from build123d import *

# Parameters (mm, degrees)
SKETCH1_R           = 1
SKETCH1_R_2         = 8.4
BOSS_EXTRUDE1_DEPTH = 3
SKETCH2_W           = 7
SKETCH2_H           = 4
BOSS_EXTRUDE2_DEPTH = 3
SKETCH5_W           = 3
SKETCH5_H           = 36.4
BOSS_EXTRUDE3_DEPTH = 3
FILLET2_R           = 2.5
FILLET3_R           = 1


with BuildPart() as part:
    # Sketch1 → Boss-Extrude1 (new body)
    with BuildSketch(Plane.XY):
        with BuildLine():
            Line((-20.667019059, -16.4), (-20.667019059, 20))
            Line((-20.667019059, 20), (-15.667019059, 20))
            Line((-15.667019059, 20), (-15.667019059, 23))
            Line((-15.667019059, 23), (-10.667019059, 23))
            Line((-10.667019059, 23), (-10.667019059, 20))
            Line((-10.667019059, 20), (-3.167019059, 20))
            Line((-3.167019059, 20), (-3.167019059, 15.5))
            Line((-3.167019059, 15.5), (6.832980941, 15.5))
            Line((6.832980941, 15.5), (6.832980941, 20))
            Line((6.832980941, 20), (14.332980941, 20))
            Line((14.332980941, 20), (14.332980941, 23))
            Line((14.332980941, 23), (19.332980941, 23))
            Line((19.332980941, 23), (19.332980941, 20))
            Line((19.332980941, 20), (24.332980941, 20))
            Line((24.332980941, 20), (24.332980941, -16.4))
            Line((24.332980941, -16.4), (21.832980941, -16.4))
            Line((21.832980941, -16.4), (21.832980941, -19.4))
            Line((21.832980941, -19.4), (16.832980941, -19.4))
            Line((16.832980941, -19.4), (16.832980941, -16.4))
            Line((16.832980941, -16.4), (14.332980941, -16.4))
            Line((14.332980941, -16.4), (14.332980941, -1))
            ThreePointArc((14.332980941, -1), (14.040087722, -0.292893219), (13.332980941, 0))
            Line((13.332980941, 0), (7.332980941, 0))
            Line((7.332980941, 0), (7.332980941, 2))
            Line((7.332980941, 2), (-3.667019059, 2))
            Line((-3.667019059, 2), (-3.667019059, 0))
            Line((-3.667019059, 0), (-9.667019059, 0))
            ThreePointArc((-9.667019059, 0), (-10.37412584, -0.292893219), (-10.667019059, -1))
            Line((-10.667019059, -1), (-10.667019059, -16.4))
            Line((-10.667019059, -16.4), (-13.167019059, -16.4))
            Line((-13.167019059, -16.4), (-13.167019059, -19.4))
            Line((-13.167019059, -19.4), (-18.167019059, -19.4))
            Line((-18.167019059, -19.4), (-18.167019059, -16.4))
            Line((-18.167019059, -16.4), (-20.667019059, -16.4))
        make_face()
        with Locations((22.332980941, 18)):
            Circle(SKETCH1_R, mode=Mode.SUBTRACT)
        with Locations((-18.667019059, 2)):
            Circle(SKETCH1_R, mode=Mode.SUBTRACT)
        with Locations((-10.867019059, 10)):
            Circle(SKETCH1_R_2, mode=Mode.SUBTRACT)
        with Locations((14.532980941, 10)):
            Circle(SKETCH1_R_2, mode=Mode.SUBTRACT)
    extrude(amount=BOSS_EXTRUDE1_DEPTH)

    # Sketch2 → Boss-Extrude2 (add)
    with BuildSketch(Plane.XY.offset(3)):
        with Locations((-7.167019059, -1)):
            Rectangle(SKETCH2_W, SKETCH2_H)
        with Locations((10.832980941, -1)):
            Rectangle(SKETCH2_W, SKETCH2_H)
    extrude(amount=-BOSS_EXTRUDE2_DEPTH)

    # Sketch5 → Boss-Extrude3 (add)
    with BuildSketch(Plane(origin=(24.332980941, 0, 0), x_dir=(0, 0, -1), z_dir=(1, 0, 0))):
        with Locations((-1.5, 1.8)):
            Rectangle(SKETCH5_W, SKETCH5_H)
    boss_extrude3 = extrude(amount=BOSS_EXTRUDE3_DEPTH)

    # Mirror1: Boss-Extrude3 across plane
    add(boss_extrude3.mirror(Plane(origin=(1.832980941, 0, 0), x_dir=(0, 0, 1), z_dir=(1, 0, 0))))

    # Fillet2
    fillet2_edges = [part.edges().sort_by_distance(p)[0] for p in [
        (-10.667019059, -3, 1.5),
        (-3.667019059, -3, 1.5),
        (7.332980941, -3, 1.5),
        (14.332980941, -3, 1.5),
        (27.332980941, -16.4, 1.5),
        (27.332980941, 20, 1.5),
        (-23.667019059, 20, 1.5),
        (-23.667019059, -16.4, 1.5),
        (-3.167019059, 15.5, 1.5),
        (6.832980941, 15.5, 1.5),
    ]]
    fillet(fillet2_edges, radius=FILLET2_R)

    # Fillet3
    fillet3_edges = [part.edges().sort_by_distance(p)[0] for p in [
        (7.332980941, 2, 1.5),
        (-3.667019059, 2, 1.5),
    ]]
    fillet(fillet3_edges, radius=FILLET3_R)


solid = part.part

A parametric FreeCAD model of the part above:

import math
import FreeCAD as App
import Part
import Sketcher


def edges_at(feature, points):
    """Names of the edges that pass closest to the given points."""
    edges = feature.Shape.Edges
    near = lambda p: min(range(len(edges)), key=lambda i: edges[i].distToShape(Part.Vertex(*p))[0])
    return sorted({f"Edge{near(p) + 1}" for p in points})

doc = App.newDocument("Part")
body = doc.addObject("PartDesign::Body", "Body")

# Sketch on XY plane
sketch1 = body.newObject("Sketcher::SketchObject", "Sketch")
sketch1.AttachmentSupport = (doc.getObject("XY_Plane"), [""])
sketch1.MapMode = "FlatFace"
sketch1.addGeometry([
    Part.LineSegment(App.Vector(-20.7, 20, 0), App.Vector(-20.7, -16.4, 0)),  # 0
    Part.LineSegment(App.Vector(-20.7, -16.4, 0), App.Vector(-18.2, -16.4, 0)),  # 1
    Part.LineSegment(App.Vector(-18.2, -16.4, 0), App.Vector(-18.2, -19.4, 0)),  # 2
    Part.LineSegment(App.Vector(-18.2, -19.4, 0), App.Vector(-13.2, -19.4, 0)),  # 3
    Part.LineSegment(App.Vector(-13.2, -19.4, 0), App.Vector(-13.2, -16.4, 0)),  # 4
    Part.LineSegment(App.Vector(-13.2, -16.4, 0), App.Vector(-10.7, -16.4, 0)),  # 5
    Part.LineSegment(App.Vector(-10.7, -16.4, 0), App.Vector(-10.7, -1, 0)),  # 6
    Part.ArcOfCircle(Part.Circle(App.Vector(-9.7, -1, 0), App.Vector(0, 0, 1), 1), math.radians(90), math.radians(180)),  # 7
    Part.LineSegment(App.Vector(-9.7, 0, 0), App.Vector(-3.7, 0, 0)),  # 8
    Part.LineSegment(App.Vector(-3.7, 0, 0), App.Vector(-3.7, 2, 0)),  # 9
    Part.LineSegment(App.Vector(-3.7, 2, 0), App.Vector(7.3, 2, 0)),  # 10
    Part.LineSegment(App.Vector(7.3, 2, 0), App.Vector(7.3, 0, 0)),  # 11
    Part.LineSegment(App.Vector(7.3, 0, 0), App.Vector(13.3, 0, 0)),  # 12
    Part.ArcOfCircle(Part.Circle(App.Vector(13.3, -1, 0), App.Vector(0, 0, 1), 1), math.radians(0), math.radians(90)),  # 13
    Part.LineSegment(App.Vector(14.3, -1, 0), App.Vector(14.3, -16.4, 0)),  # 14
    Part.LineSegment(App.Vector(14.3, -16.4, 0), App.Vector(16.8, -16.4, 0)),  # 15
    Part.LineSegment(App.Vector(16.8, -16.4, 0), App.Vector(16.8, -19.4, 0)),  # 16
    Part.LineSegment(App.Vector(16.8, -19.4, 0), App.Vector(21.8, -19.4, 0)),  # 17
    Part.LineSegment(App.Vector(21.8, -19.4, 0), App.Vector(21.8, -16.4, 0)),  # 18
    Part.LineSegment(App.Vector(21.8, -16.4, 0), App.Vector(24.3, -16.4, 0)),  # 19
    Part.LineSegment(App.Vector(24.3, -16.4, 0), App.Vector(24.3, 20, 0)),  # 20
    Part.LineSegment(App.Vector(24.3, 20, 0), App.Vector(19.3, 20, 0)),  # 21
    Part.LineSegment(App.Vector(19.3, 20, 0), App.Vector(19.3, 23, 0)),  # 22
    Part.LineSegment(App.Vector(19.3, 23, 0), App.Vector(14.3, 23, 0)),  # 23
    Part.LineSegment(App.Vector(14.3, 23, 0), App.Vector(14.3, 20, 0)),  # 24
    Part.LineSegment(App.Vector(14.3, 20, 0), App.Vector(6.8, 20, 0)),  # 25
    Part.LineSegment(App.Vector(6.8, 20, 0), App.Vector(6.8, 15.5, 0)),  # 26
    Part.LineSegment(App.Vector(6.8, 15.5, 0), App.Vector(-3.2, 15.5, 0)),  # 27
    Part.LineSegment(App.Vector(-3.2, 15.5, 0), App.Vector(-3.2, 20, 0)),  # 28
    Part.LineSegment(App.Vector(-3.2, 20, 0), App.Vector(-10.7, 20, 0)),  # 29
    Part.LineSegment(App.Vector(-10.7, 20, 0), App.Vector(-10.7, 23, 0)),  # 30
    Part.LineSegment(App.Vector(-10.7, 23, 0), App.Vector(-15.7, 23, 0)),  # 31
    Part.LineSegment(App.Vector(-15.7, 23, 0), App.Vector(-15.7, 20, 0)),  # 32
    Part.LineSegment(App.Vector(-15.7, 20, 0), App.Vector(-20.7, 20, 0)),  # 33
    Part.Circle(App.Vector(-18.7, 2, 0), App.Vector(0, 0, 1), 1),  # 34
    Part.Circle(App.Vector(14.5, 10, 0), App.Vector(0, 0, 1), 8.4),  # 35
    Part.Circle(App.Vector(22.3, 18, 0), App.Vector(0, 0, 1), 1),  # 36
    Part.Circle(App.Vector(-10.9, 10, 0), App.Vector(0, 0, 1), 8.4),  # 37
], False)
sketch1.addConstraint([
    Sketcher.Constraint("Coincident", 0, 2, 1, 1),
    Sketcher.Constraint("Coincident", 1, 2, 2, 1),
    Sketcher.Constraint("Coincident", 2, 2, 3, 1),
    Sketcher.Constraint("Coincident", 3, 2, 4, 1),
    Sketcher.Constraint("Coincident", 4, 2, 5, 1),
    Sketcher.Constraint("Coincident", 5, 2, 6, 1),
    Sketcher.Constraint("Tangent", 6, 2, 7, 2),
    Sketcher.Constraint("Tangent", 7, 1, 8, 1),
    Sketcher.Constraint("Coincident", 8, 2, 9, 1),
    Sketcher.Constraint("Coincident", 9, 2, 10, 1),
    Sketcher.Constraint("Coincident", 10, 2, 11, 1),
    Sketcher.Constraint("Coincident", 11, 2, 12, 1),
    Sketcher.Constraint("Tangent", 12, 2, 13, 2),
    Sketcher.Constraint("Tangent", 13, 1, 14, 1),
    Sketcher.Constraint("Coincident", 14, 2, 15, 1),
    Sketcher.Constraint("Coincident", 15, 2, 16, 1),
    Sketcher.Constraint("Coincident", 16, 2, 17, 1),
    Sketcher.Constraint("Coincident", 17, 2, 18, 1),
    Sketcher.Constraint("Coincident", 18, 2, 19, 1),
    Sketcher.Constraint("Coincident", 19, 2, 20, 1),
    Sketcher.Constraint("Coincident", 20, 2, 21, 1),
    Sketcher.Constraint("Coincident", 21, 2, 22, 1),
    Sketcher.Constraint("Coincident", 22, 2, 23, 1),
    Sketcher.Constraint("Coincident", 23, 2, 24, 1),
    Sketcher.Constraint("Coincident", 24, 2, 25, 1),
    Sketcher.Constraint("Coincident", 25, 2, 26, 1),
    Sketcher.Constraint("Coincident", 26, 2, 27, 1),
    Sketcher.Constraint("Coincident", 27, 2, 28, 1),
    Sketcher.Constraint("Coincident", 28, 2, 29, 1),
    Sketcher.Constraint("Coincident", 29, 2, 30, 1),
    Sketcher.Constraint("Coincident", 30, 2, 31, 1),
    Sketcher.Constraint("Coincident", 31, 2, 32, 1),
    Sketcher.Constraint("Coincident", 32, 2, 33, 1),
    Sketcher.Constraint("Coincident", 33, 2, 0, 1),
    Sketcher.Constraint("Vertical", 0),
    Sketcher.Constraint("Horizontal", 1),
    Sketcher.Constraint("Vertical", 2),
    Sketcher.Constraint("Horizontal", 3),
    Sketcher.Constraint("Vertical", 4),
    Sketcher.Constraint("Horizontal", 5),
    Sketcher.Constraint("Vertical", 6),
    Sketcher.Constraint("Horizontal", 8),
    Sketcher.Constraint("Vertical", 9),
    Sketcher.Constraint("Horizontal", 10),
    Sketcher.Constraint("Vertical", 11),
    Sketcher.Constraint("Horizontal", 12),
    Sketcher.Constraint("Vertical", 14),
    Sketcher.Constraint("Horizontal", 15),
    Sketcher.Constraint("Vertical", 16),
    Sketcher.Constraint("Horizontal", 17),
    Sketcher.Constraint("Vertical", 18),
    Sketcher.Constraint("Horizontal", 19),
    Sketcher.Constraint("Vertical", 20),
    Sketcher.Constraint("Horizontal", 21),
    Sketcher.Constraint("Vertical", 22),
    Sketcher.Constraint("Horizontal", 23),
    Sketcher.Constraint("Vertical", 24),
    Sketcher.Constraint("Horizontal", 25),
    Sketcher.Constraint("Vertical", 26),
    Sketcher.Constraint("Horizontal", 27),
    Sketcher.Constraint("Vertical", 28),
    Sketcher.Constraint("Horizontal", 29),
    Sketcher.Constraint("Vertical", 30),
    Sketcher.Constraint("Horizontal", 31),
    Sketcher.Constraint("Vertical", 32),
    Sketcher.Constraint("Horizontal", 33),
    Sketcher.Constraint("Equal", 7, 13),
    Sketcher.Constraint("Equal", 13, 34),
    Sketcher.Constraint("Equal", 34, 36),
    Sketcher.Constraint("Equal", 35, 37),
    Sketcher.Constraint("PointOnObject", 7, 1, -1),
    Sketcher.Constraint("PointOnObject", 11, 2, -1),
    Sketcher.Constraint("Horizontal", 35, 3, 37, 3),
    Sketcher.Constraint("Horizontal", 1, 2, 4, 2),
    Sketcher.Constraint("Horizontal", 34, 3, 9, 2),
    Sketcher.Constraint("Horizontal", 5, 2, 14, 2),
    Sketcher.Constraint("Horizontal", 3, 2, 16, 2),
    Sketcher.Constraint("Horizontal", 15, 2, 18, 2),
    Sketcher.Constraint("Horizontal", 21, 2, 24, 2),
    Sketcher.Constraint("Horizontal", 25, 2, 28, 2),
    Sketcher.Constraint("Horizontal", 23, 2, 30, 2),
    Sketcher.Constraint("Horizontal", 29, 2, 32, 2),
    Sketcher.Constraint("Vertical", 14, 2, 23, 2),
    Sketcher.Constraint("Vertical", 6, 2, 29, 2),
    Sketcher.Constraint("Equal", 1, 5),
    Sketcher.Constraint("Equal", 8, 12),
    Sketcher.Constraint("Equal", 5, 15),
    Sketcher.Constraint("Equal", 3, 17),
    Sketcher.Constraint("Equal", 15, 19),
    Sketcher.Constraint("Equal", 17, 21),
    Sketcher.Constraint("Equal", 21, 23),
    Sketcher.Constraint("Equal", 25, 29),
    Sketcher.Constraint("Equal", 23, 31),
    Sketcher.Constraint("Equal", 18, 22),
    Sketcher.Constraint("Diameter", 34, 2.0),
    Sketcher.Constraint("Diameter", 35, 16.8),
    Sketcher.Constraint("DistanceX", 3, 1, 3, 2, 5.0),
    Sketcher.Constraint("DistanceX", 8, 1, 8, 2, 6.0),
    Sketcher.Constraint("DistanceX", 10, 1, 10, 2, 11.0),
    Sketcher.Constraint("DistanceX", 27, 2, 27, 1, 10.0),
    Sketcher.Constraint("DistanceY", 2, 2, 2, 1, 3.0),
    Sketcher.Constraint("DistanceY", 9, 1, 9, 2, 2.0),
    Sketcher.Constraint("DistanceY", 0, 2, 0, 1, 36.4),
    Sketcher.Constraint("DistanceY", 6, 1, 6, 2, 15.4),
    Sketcher.Constraint("DistanceY", 26, 2, 26, 1, 4.5),
    Sketcher.Constraint("DistanceY", -1, 1, 35, 3, 10.0),
    Sketcher.Constraint("DistanceY", -1, 1, 36, 3, 18.0),
    Sketcher.Constraint("DistanceX", 34, 3, 7, 3, 9.0),
    Sketcher.Constraint("DistanceX", 13, 3, 36, 3, 9.0),
    Sketcher.Constraint("DistanceX", 13, 3, 35, 3, 1.2),
    Sketcher.Constraint("DistanceX", 37, 3, 7, 3, 1.2),
    Sketcher.Constraint("DistanceX", 7, 3, -1, 1, 9.667019),
])
pad1 = body.newObject("PartDesign::Pad", "Pad")
pad1.Profile = sketch1
pad1.Length = 3

# Sketch on XY plane
sketch2 = body.newObject("Sketcher::SketchObject", "Sketch001")
sketch2.AttachmentSupport = (doc.getObject("XY_Plane"), [""])
sketch2.MapMode = "FlatFace"
sketch2.AttachmentOffset = App.Placement(App.Vector(0, 0, 3), App.Rotation())
sketch2.addGeometry([
    Part.LineSegment(App.Vector(-10.7, 1, 0), App.Vector(-10.7, -3, 0)),  # 0
    Part.LineSegment(App.Vector(-10.7, -3, 0), App.Vector(-3.7, -3, 0)),  # 1
    Part.LineSegment(App.Vector(-3.7, -3, 0), App.Vector(-3.7, 1, 0)),  # 2
    Part.LineSegment(App.Vector(-3.7, 1, 0), App.Vector(-10.7, 1, 0)),  # 3
    Part.LineSegment(App.Vector(7.3, 1, 0), App.Vector(7.3, -3, 0)),  # 4
    Part.LineSegment(App.Vector(7.3, -3, 0), App.Vector(14.3, -3, 0)),  # 5
    Part.LineSegment(App.Vector(14.3, -3, 0), App.Vector(14.3, 1, 0)),  # 6
    Part.LineSegment(App.Vector(14.3, 1, 0), App.Vector(7.3, 1, 0)),  # 7
], False)
sketch2.addConstraint([
    Sketcher.Constraint("Coincident", 0, 2, 1, 1),
    Sketcher.Constraint("Coincident", 1, 2, 2, 1),
    Sketcher.Constraint("Coincident", 2, 2, 3, 1),
    Sketcher.Constraint("Coincident", 3, 2, 0, 1),
    Sketcher.Constraint("Coincident", 4, 2, 5, 1),
    Sketcher.Constraint("Coincident", 5, 2, 6, 1),
    Sketcher.Constraint("Coincident", 6, 2, 7, 1),
    Sketcher.Constraint("Coincident", 7, 2, 4, 1),
    Sketcher.Constraint("Vertical", 0),
    Sketcher.Constraint("Horizontal", 1),
    Sketcher.Constraint("Vertical", 2),
    Sketcher.Constraint("Horizontal", 3),
    Sketcher.Constraint("Vertical", 4),
    Sketcher.Constraint("Horizontal", 5),
    Sketcher.Constraint("Vertical", 6),
    Sketcher.Constraint("Horizontal", 7),
    Sketcher.Constraint("Horizontal", 1, 2, 4, 2),
    Sketcher.Constraint("Horizontal", 3, 2, 6, 2),
    Sketcher.Constraint("Equal", 3, 5),
    Sketcher.Constraint("DistanceX", 1, 1, 1, 2, 7.0),
    Sketcher.Constraint("DistanceY", 0, 2, 0, 1, 4.0),
    Sketcher.Constraint("DistanceY", 0, 2, -1, 1, 3.0),
    Sketcher.Constraint("DistanceX", 1, 2, 4, 2, 11.0),
    Sketcher.Constraint("DistanceX", 0, 2, -1, 1, 10.667019),
])
pad2 = body.newObject("PartDesign::Pad", "Pad001")
pad2.Profile = sketch2
pad2.Length = 3
pad2.Reversed = True

# Sketch on YZ plane
sketch3 = body.newObject("Sketcher::SketchObject", "Sketch002")
sketch3.AttachmentSupport = (doc.getObject("YZ_Plane"), [""])
sketch3.MapMode = "FlatFace"
sketch3.AttachmentOffset = App.Placement(App.Vector(0, 0, 24.332981), App.Rotation())
sketch3.addGeometry([
    Part.LineSegment(App.Vector(20, 3, 0), App.Vector(-16.4, 3, 0)),
    Part.LineSegment(App.Vector(-16.4, 3, 0), App.Vector(-16.4, 0, 0)),
    Part.LineSegment(App.Vector(-16.4, 0, 0), App.Vector(20, 0, 0)),
    Part.LineSegment(App.Vector(20, 0, 0), App.Vector(20, 3, 0)),
], False)
sketch3.addConstraint([
    Sketcher.Constraint("Coincident", 0, 2, 1, 1),
    Sketcher.Constraint("Coincident", 1, 2, 2, 1),
    Sketcher.Constraint("Coincident", 2, 2, 3, 1),
    Sketcher.Constraint("Coincident", 3, 2, 0, 1),
    Sketcher.Constraint("Horizontal", 0),
    Sketcher.Constraint("Vertical", 1),
    Sketcher.Constraint("Horizontal", 2),
    Sketcher.Constraint("Vertical", 3),
    Sketcher.Constraint("PointOnObject", 1, 2, -1),
    Sketcher.Constraint("DistanceY", 1, 2, 1, 1, 3.0),
    Sketcher.Constraint("DistanceX", 0, 2, 0, 1, 36.4),
    Sketcher.Constraint("DistanceX", -1, 1, 2, 2, 20.0),
])
pad3 = body.newObject("PartDesign::Pad", "Pad002")
pad3.Profile = sketch3
pad3.Length = 3
doc.recompute()

datumplane = body.newObject("PartDesign::Plane", "DatumPlane")
datumplane.AttachmentSupport = (doc.getObject("YZ_Plane"), [""])
datumplane.MapMode = "FlatFace"
datumplane.AttachmentOffset = App.Placement(App.Vector(0, 0, 1.832981), App.Rotation())
mirrored = body.newObject("PartDesign::Mirrored", "Mirrored")
mirrored.Originals = [pad3]
mirrored.MirrorPlane = (datumplane, [""])
body.Tip = mirrored
doc.recompute()

fillet = body.newObject("PartDesign::Fillet", "Fillet")
fillet.Base = (mirrored, edges_at(mirrored, [
    (-10.667, -3, 1.5),
    (-3.667, -3, 1.5),
    (7.333, -3, 1.5),
    (14.333, -3, 1.5),
    (27.333, -16.4, 1.5),
    (27.333, 20, 1.5),
    (-23.667, 20, 1.5),
    (-23.667, -16.4, 1.5),
    (-3.167, 15.5, 1.5),
    (6.833, 15.5, 1.5),
]))
fillet.Radius = 2.5
doc.recompute()

fillet2 = body.newObject("PartDesign::Fillet", "Fillet001")
fillet2.Base = (fillet, edges_at(fillet, [(7.333, 2, 1.5), (-3.667, 2, 1.5)]))
fillet2.Radius = 1

doc.recompute()
